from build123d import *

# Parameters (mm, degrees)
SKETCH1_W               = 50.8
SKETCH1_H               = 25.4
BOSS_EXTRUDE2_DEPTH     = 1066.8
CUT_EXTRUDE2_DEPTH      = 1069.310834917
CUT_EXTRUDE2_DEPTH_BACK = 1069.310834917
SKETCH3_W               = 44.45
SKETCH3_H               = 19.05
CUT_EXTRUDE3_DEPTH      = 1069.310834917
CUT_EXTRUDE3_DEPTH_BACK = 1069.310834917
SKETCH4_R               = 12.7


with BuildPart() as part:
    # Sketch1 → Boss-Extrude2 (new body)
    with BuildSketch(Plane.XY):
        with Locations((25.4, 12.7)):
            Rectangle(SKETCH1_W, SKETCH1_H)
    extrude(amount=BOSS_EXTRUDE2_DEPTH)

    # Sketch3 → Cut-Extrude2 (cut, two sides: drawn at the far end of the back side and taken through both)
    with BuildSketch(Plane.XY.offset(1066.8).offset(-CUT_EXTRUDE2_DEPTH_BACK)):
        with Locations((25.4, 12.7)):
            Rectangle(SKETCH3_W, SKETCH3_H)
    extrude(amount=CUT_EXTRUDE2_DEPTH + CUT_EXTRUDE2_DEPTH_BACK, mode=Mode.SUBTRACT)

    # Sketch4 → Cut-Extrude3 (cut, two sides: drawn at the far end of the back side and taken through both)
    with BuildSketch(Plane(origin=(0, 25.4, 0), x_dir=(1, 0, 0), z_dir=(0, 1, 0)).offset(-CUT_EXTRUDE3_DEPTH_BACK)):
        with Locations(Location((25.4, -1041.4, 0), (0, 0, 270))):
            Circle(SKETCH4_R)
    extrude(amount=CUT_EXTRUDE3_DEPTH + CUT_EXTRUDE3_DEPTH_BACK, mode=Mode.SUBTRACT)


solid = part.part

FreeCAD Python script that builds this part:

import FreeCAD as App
import Part
import Sketcher
Q = App.Units.Quantity


def add_polygon(sketch, points):
    """Adds a closed chain of lines whose ends are joined by coincident constraints."""
    first, n = sketch.GeometryCount, len(points)
    for a, b in zip(points, points[1:] + points[:1]):
        sketch.addGeometry(Part.LineSegment(App.Vector(*a, 0), App.Vector(*b, 0)), False)
    for i in range(n):
        sketch.addConstraint(Sketcher.Constraint("Coincident", first + i, 2, first + (i + 1) % n, 1))

doc = App.newDocument("Part")
body = doc.addObject("PartDesign::Body", "Body")

# Sketch on XY plane
sketch1 = doc.addObject("Sketcher::SketchObject", "Sketch")
body.addObject(sketch1)
sketch1.AttachmentSupport = (doc.XY_Plane, [""])
sketch1.MapMode = "FlatFace"
add_polygon(sketch1, [(0, 25), (0, 0), (51, 0), (51, 25)])  # lines 0-3
sketch1.addConstraint(Sketcher.Constraint("Vertical", 0))
sketch1.addConstraint(Sketcher.Constraint("Horizontal", 1))
sketch1.addConstraint(Sketcher.Constraint("Vertical", 2))
sketch1.addConstraint(Sketcher.Constraint("Horizontal", 3))
sketch1.addConstraint(Sketcher.Constraint("Coincident", 0, 2, -1, 1))
sketch1.addConstraint(Sketcher.Constraint("DistanceX", 1, 1, 1, 2, Q("2 in")))
sketch1.addConstraint(Sketcher.Constraint("DistanceY", 0, 2, 0, 1, Q("1 in")))
pad1 = doc.addObject("PartDesign::Pad", "Pad")
body.addObject(pad1)
pad1.Profile = sketch1
pad1.Length = Q("42 in")

# Sketch on XY plane
sketch2 = doc.addObject("Sketcher::SketchObject", "Sketch001")
body.addObject(sketch2)
sketch2.AttachmentSupport = (doc.XY_Plane, [""])
sketch2.MapMode = "FlatFace"
sketch2.AttachmentOffset = App.Placement(App.Vector(0, 0, 42 * 25.4), App.Rotation())
add_polygon(sketch2, [(3, 22), (3, 3), (48, 3), (48, 22)])  # lines 0-3
sketch2.addConstraint(Sketcher.Constraint("Vertical", 0))
sketch2.addConstraint(Sketcher.Constraint("Horizontal", 1))
sketch2.addConstraint(Sketcher.Constraint("Vertical", 2))
sketch2.addConstraint(Sketcher.Constraint("Horizontal", 3))
sketch2.addConstraint(Sketcher.Constraint("DistanceX", 1, 1, 1, 2, Q("1.75 in")))
sketch2.addConstraint(Sketcher.Constraint("DistanceY", 0, 2, 0, 1, Q("0.75 in")))
sketch2.addConstraint(Sketcher.Constraint("DistanceX", -1, 1, 0, 2, Q("0.125 in")))
sketch2.addConstraint(Sketcher.Constraint("DistanceY", -1, 1, 0, 2, Q("0.125 in")))
pocket1 = doc.addObject("PartDesign::Pocket", "Pocket")
body.addObject(pocket1)
pocket1.Profile = sketch2
pocket1.Type = "ThroughAll"
pocket1.Midplane = True

# Sketch on XZ plane
sketch3 = doc.addObject("Sketcher::SketchObject", "Sketch002")
body.addObject(sketch3)
sketch3.AttachmentSupport = (doc.XZ_Plane, [""])
sketch3.MapMode = "FlatFace"
sketch3.AttachmentOffset = App.Placement(App.Vector(0, 0, -1 * 25.4), App.Rotation())
sketch3.addGeometry(Part.Circle(App.Vector(25, 1041, 0), App.Vector(0, 0, 1), 13), False)
sketch3.addConstraint(Sketcher.Constraint("Diameter", 0, Q("1 in")))
sketch3.addConstraint(Sketcher.Constraint("DistanceX", -1, 1, 0, 3, Q("1 in")))
sketch3.addConstraint(Sketcher.Constraint("DistanceY", -1, 1, 0, 3, Q("41 in")))
pocket2 = doc.addObject("PartDesign::Pocket", "Pocket001")
body.addObject(pocket2)
pocket2.Profile = sketch3
pocket2.Type = "ThroughAll"
pocket2.Midplane = True

doc.recompute()
